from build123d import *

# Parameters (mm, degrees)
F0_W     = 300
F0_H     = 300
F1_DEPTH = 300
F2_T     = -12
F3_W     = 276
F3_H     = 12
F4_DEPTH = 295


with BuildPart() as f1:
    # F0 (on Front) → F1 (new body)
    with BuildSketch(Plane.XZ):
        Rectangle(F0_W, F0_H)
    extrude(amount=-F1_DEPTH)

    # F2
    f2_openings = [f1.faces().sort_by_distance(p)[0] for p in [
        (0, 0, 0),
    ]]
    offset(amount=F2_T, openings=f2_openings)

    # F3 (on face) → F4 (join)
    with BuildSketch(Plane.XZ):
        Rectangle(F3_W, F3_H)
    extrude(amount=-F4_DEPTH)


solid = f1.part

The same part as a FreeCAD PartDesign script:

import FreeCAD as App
import Part
import Sketcher

V = App.Vector


def faces_at(feature, points):
    """Names of the faces that lie closest to the given points."""
    faces = feature.Shape.Faces
    near = lambda p: min(range(len(faces)), key=lambda i: faces[i].distToShape(Part.Vertex(*p))[0])
    return sorted({f"Face{near(p) + 1}" for p in points})


def add_polygon(sketch, points):
    """Adds a closed chain of lines whose ends are joined by coincident constraints."""
    first, n = sketch.GeometryCount, len(points)
    for a, b in zip(points, points[1:] + points[:1]):
        sketch.addGeometry(Part.LineSegment(App.Vector(*a, 0), App.Vector(*b, 0)), False)
    for i in range(n):
        sketch.addConstraint(Sketcher.Constraint("Coincident", first + i, 2, first + (i + 1) % n, 1))

doc = App.newDocument("Part")
params = doc.addObject("Spreadsheet::Sheet", "Params")
for row, (alias, value) in enumerate([
    ("sketch1_width", "300 mm"),
    ("pad1_length", "300 mm"),
    ("thickness_wall", "12 mm"),
    ("sketch2_width", "276 mm"),
    ("sketch2_height", "12 mm"),
    ("pad2_length", "295 mm"),
], start=1):
    params.set(f"A{row}", alias)
    params.set(f"B{row}", "=" + value)
    params.setAlias(f"B{row}", alias)

body = doc.addObject("PartDesign::Body", "Body")

# Sketch on XZ plane
sketch1 = body.newObject("Sketcher::SketchObject", "Sketch")
sketch1.AttachmentSupport = (doc.getObject("XZ_Plane"), [""])
sketch1.MapMode = "FlatFace"
add_polygon(sketch1, [(-150, 150), (-150, -150), (150, -150), (150, 150)])  # lines 0-3
sketch1.addConstraint([
    Sketcher.Constraint("Vertical", 0),
    Sketcher.Constraint("Horizontal", 1),
    Sketcher.Constraint("Vertical", 2),
    Sketcher.Constraint("Horizontal", 3),
    Sketcher.Constraint("Symmetric", 0, 2, 2, 2, -1, 1),
    Sketcher.Constraint("Equal", 3, 0),
    Sketcher.Constraint("DistanceX", 1, 1, 1, 2, 300.0),
])
sketch1.setExpression("Constraints[10]", "Params.sketch1_width")
pad1 = body.newObject("PartDesign::Pad", "Pad")
pad1.Profile = sketch1
pad1.setExpression("Length", "Params.pad1_length")
pad1.Reversed = True
doc.recompute()

thickness = body.newObject("PartDesign::Thickness", "Thickness")
thickness.Base = (pad1, faces_at(pad1, [(0, 0, 0)]))
thickness.setExpression("Value", "Params.thickness_wall")
thickness.Reversed = True
thickness.Join = "Arc"

# Sketch on XZ plane
sketch2 = body.newObject("Sketcher::SketchObject", "Sketch001")
sketch2.AttachmentSupport = (doc.getObject("XZ_Plane"), [""])
sketch2.MapMode = "FlatFace"
add_polygon(sketch2, [(-138, 6), (-138, -6), (138, -6), (138, 6)])  # lines 0-3
sketch2.addConstraint([
    Sketcher.Constraint("Vertical", 0),
    Sketcher.Constraint("Horizontal", 1),
    Sketcher.Constraint("Vertical", 2),
    Sketcher.Constraint("Horizontal", 3),
    Sketcher.Constraint("Symmetric", 0, 2, 2, 2, -1, 1),
    Sketcher.Constraint("DistanceX", 1, 1, 1, 2, 276.0),
    Sketcher.Constraint("DistanceY", 0, 2, 0, 1, 12.0),
])
sketch2.setExpression("Constraints[9]", "Params.sketch2_width")
sketch2.setExpression("Constraints[10]", "Params.sketch2_height")
pad2 = body.newObject("PartDesign::Pad", "Pad001")
pad2.Profile = sketch2
pad2.setExpression("Length", "Params.pad2_length")
pad2.Reversed = True

doc.recompute()
